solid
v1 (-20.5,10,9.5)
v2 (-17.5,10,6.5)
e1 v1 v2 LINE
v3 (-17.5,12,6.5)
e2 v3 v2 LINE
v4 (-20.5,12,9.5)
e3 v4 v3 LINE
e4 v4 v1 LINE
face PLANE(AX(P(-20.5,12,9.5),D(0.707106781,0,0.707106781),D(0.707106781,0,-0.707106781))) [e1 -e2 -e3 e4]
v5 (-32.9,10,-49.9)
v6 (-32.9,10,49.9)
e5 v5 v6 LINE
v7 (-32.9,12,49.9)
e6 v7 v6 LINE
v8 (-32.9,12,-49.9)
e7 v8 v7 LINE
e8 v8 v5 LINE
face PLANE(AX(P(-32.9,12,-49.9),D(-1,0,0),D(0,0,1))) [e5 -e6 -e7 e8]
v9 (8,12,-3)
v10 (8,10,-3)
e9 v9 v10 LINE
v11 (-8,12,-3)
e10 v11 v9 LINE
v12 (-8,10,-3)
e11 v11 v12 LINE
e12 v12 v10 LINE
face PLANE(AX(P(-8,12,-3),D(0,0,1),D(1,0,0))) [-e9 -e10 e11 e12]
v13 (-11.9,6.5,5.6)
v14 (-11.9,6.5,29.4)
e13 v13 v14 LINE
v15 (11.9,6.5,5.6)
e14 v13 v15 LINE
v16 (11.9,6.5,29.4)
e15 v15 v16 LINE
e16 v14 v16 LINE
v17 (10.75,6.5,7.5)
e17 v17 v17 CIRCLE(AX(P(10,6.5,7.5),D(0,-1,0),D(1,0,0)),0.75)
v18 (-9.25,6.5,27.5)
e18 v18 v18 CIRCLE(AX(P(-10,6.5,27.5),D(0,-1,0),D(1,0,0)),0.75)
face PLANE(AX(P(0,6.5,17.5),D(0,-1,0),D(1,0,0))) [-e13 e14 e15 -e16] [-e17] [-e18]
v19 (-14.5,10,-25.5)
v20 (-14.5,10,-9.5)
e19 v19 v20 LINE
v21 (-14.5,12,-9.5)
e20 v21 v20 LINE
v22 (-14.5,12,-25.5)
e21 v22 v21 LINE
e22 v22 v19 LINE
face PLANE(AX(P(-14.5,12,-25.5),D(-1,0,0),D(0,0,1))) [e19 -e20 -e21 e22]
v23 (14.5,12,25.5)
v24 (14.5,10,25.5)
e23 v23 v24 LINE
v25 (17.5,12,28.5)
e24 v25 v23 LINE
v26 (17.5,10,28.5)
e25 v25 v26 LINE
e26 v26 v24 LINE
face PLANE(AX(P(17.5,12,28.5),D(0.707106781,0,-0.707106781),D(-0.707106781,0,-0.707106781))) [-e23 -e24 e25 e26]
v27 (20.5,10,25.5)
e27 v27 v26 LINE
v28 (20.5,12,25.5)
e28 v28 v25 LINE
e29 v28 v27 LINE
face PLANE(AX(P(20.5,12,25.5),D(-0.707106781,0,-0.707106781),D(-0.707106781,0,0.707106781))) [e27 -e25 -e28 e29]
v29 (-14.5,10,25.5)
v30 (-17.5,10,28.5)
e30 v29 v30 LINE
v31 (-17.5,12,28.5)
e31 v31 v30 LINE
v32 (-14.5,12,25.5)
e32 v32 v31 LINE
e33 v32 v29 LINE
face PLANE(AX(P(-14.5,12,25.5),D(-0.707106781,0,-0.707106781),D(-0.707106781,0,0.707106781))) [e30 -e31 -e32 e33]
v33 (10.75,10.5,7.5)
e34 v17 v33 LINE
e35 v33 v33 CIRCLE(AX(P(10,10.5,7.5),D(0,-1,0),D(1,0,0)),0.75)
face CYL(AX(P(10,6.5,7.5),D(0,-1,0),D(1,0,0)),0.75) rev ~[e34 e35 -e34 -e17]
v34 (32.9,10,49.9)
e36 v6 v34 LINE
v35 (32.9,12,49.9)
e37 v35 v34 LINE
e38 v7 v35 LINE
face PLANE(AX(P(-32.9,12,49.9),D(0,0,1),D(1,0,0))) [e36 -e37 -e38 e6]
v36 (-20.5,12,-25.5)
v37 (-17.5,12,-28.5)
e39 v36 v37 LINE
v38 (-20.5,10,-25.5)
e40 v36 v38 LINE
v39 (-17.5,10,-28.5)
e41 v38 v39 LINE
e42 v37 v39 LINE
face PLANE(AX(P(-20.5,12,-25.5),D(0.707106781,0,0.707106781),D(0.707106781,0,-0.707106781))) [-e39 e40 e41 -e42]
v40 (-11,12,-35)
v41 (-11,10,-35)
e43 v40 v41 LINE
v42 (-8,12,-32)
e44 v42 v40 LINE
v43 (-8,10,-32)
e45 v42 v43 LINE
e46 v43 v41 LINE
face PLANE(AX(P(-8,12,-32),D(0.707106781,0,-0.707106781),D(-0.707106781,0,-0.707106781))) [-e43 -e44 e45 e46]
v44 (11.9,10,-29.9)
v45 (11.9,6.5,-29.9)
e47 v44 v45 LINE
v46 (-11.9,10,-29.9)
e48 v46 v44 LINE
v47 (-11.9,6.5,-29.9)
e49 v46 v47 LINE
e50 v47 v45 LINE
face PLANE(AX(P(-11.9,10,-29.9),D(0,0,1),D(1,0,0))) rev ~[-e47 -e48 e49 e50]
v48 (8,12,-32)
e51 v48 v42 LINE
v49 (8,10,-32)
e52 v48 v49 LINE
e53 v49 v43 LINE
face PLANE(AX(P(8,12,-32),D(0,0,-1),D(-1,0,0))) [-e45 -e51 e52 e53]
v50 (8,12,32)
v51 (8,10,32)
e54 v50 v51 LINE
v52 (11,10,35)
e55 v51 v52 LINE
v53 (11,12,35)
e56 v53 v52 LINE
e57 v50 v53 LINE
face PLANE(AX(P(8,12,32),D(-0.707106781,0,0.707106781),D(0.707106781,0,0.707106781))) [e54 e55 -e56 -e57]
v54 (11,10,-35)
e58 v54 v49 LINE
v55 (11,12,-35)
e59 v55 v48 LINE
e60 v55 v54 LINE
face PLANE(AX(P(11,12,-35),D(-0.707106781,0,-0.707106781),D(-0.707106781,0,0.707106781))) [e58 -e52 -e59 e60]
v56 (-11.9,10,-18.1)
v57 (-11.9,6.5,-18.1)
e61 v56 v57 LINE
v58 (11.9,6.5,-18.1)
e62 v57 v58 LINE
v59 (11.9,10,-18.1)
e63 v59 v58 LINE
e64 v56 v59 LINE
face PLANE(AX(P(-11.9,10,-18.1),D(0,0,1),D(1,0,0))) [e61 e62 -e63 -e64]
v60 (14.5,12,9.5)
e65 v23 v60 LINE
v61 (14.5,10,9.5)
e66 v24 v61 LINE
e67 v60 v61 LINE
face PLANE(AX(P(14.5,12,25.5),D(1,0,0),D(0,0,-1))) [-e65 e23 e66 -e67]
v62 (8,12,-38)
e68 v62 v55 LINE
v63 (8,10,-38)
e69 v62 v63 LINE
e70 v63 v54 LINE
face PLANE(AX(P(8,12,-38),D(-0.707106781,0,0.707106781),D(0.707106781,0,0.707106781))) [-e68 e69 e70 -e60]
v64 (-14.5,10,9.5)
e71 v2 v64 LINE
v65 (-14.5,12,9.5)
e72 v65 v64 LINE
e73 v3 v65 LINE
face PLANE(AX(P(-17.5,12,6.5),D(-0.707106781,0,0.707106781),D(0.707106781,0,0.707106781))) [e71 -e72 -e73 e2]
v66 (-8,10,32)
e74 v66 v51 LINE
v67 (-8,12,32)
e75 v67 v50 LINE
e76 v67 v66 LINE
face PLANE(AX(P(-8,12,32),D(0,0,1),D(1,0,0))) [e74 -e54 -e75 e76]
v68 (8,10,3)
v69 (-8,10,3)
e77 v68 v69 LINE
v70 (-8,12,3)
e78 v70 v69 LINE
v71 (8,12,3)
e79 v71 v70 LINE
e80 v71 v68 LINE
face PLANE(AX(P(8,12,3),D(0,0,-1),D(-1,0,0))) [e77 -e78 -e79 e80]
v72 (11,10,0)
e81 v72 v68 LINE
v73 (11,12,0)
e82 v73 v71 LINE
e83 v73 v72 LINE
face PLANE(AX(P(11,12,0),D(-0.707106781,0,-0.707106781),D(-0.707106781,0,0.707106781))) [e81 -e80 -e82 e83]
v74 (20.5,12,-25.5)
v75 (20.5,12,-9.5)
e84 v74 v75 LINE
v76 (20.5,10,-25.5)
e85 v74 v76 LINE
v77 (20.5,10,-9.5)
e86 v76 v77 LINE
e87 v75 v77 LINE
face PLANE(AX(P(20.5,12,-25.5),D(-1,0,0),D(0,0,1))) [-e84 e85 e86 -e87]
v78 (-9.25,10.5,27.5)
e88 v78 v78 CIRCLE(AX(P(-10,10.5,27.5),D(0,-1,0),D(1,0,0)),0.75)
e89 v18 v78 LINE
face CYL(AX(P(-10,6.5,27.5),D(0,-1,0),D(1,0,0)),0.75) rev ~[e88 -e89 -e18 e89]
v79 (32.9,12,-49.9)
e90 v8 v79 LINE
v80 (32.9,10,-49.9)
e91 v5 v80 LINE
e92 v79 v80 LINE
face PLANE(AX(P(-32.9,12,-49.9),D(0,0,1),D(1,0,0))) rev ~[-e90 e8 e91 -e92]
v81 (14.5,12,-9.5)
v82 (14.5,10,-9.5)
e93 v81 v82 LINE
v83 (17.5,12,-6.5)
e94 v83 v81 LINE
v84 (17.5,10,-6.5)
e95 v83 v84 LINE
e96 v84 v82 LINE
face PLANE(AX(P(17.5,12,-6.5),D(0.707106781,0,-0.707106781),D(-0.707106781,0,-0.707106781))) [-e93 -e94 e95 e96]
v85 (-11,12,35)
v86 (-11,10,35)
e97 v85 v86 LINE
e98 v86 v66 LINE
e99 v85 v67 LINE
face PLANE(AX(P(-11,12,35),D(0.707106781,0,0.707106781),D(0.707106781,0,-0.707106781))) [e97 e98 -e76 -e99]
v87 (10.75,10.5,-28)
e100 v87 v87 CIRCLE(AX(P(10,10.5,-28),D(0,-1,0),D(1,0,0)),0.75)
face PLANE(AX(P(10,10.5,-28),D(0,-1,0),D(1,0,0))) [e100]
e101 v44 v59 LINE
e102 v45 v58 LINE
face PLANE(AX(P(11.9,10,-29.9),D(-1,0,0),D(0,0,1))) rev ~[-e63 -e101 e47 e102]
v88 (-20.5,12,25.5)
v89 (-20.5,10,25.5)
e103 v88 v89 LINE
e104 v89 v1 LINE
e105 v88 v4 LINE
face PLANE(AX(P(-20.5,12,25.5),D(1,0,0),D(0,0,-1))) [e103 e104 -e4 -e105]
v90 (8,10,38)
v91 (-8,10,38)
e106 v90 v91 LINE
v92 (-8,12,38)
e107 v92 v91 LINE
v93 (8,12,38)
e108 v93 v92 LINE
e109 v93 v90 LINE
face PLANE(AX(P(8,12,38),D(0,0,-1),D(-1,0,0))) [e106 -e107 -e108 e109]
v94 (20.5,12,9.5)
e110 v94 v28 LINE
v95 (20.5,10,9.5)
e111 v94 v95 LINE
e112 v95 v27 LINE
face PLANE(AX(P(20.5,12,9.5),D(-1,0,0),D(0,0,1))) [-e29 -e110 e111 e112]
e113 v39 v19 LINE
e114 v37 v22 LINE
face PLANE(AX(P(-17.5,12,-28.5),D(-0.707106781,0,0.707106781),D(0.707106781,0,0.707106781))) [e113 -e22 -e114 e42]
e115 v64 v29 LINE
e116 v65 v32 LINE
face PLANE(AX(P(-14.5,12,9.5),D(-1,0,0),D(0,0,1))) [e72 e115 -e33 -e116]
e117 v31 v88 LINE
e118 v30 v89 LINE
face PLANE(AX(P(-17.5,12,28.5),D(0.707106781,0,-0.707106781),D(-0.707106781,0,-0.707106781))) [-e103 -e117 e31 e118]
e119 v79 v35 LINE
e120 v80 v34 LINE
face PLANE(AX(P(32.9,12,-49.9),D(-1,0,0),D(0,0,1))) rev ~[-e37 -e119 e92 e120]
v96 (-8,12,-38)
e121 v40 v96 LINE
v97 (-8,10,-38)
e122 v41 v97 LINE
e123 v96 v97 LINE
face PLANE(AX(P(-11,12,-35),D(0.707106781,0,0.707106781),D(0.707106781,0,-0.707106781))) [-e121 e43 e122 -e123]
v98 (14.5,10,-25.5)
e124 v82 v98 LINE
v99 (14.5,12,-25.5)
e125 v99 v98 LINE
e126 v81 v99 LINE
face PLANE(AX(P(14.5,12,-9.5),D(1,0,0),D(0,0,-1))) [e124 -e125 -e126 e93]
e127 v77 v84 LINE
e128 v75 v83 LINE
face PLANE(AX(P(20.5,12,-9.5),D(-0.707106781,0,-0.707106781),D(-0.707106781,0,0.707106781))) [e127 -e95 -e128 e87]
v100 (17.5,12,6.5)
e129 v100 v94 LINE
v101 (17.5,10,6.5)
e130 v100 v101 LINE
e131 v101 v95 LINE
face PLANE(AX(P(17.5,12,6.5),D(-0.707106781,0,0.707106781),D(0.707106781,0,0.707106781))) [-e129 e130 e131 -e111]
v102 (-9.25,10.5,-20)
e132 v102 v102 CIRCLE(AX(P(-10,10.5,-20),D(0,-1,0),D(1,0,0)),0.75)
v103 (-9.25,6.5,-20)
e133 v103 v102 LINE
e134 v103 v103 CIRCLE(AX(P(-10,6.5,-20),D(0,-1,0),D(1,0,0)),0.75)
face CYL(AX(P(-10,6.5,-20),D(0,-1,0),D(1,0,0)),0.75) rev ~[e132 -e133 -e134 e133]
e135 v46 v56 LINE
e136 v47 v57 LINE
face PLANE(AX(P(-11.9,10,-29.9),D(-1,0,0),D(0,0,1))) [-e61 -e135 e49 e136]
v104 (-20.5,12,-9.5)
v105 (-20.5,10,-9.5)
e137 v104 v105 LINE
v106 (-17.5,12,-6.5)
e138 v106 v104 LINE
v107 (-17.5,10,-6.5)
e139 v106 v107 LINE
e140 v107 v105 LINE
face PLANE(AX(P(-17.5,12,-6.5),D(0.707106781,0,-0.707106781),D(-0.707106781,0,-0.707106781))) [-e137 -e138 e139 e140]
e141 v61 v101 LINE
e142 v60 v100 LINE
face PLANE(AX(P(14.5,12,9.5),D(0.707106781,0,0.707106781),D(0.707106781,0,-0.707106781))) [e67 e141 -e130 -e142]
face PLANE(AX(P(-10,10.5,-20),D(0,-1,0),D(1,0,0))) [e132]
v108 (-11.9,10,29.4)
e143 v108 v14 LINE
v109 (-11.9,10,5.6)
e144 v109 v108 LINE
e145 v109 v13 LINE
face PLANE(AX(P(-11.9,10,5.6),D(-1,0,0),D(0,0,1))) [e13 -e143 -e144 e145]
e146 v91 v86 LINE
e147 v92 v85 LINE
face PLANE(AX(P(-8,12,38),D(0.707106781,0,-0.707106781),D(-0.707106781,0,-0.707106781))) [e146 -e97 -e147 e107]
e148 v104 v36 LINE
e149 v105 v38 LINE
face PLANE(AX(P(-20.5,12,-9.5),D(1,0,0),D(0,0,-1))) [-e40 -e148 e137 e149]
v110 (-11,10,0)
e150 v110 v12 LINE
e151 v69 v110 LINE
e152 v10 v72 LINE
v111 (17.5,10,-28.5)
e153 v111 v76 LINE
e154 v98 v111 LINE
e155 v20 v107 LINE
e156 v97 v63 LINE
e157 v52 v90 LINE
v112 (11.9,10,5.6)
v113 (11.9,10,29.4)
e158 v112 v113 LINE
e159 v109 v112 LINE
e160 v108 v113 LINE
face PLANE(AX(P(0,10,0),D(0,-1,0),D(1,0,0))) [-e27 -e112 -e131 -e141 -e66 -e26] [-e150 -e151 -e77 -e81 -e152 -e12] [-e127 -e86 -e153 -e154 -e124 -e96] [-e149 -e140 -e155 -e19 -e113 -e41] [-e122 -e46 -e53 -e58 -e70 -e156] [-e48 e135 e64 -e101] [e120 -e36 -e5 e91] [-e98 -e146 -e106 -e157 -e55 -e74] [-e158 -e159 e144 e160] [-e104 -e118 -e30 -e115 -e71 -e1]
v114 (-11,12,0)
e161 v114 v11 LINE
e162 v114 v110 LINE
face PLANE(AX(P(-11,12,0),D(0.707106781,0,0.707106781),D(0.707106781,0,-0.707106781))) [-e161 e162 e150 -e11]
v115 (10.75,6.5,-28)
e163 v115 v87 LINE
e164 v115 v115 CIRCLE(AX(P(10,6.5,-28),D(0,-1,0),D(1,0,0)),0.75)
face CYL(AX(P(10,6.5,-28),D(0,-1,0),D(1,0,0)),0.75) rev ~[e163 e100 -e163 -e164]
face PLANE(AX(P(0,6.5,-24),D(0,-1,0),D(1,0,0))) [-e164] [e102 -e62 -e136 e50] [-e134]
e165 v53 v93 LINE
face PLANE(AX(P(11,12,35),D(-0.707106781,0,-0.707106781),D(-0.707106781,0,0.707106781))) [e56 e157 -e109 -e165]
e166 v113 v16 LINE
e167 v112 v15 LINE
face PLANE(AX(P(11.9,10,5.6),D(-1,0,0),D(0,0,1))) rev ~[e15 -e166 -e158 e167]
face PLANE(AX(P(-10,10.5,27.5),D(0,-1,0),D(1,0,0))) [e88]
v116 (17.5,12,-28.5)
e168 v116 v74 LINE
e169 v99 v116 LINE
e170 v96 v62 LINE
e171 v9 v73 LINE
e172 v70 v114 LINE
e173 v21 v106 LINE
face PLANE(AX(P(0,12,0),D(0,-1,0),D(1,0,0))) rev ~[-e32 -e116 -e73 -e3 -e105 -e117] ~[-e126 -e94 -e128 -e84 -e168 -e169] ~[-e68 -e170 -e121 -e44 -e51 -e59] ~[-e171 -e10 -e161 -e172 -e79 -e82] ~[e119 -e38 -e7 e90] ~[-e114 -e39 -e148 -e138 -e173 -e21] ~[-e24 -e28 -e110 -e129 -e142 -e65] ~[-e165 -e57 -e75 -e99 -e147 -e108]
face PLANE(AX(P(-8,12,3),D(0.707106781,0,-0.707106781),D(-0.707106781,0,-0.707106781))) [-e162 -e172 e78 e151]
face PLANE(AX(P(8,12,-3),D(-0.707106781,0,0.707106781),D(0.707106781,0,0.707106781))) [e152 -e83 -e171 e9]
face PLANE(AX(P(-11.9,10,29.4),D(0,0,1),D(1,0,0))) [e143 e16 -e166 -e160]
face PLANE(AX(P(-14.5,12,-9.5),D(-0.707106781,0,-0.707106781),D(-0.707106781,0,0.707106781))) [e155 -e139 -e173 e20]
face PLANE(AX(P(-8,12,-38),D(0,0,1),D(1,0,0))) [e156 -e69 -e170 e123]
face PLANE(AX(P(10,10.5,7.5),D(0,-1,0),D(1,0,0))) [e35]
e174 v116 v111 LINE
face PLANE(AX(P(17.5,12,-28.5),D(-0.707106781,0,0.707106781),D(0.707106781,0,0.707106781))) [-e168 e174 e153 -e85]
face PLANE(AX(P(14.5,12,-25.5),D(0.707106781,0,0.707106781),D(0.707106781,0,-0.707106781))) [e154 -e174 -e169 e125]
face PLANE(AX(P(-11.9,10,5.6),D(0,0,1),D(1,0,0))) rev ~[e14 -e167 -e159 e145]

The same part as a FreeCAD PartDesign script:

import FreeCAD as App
import Part
import Sketcher

V = App.Vector


def add_polygon(sketch, points):
    """Adds a closed chain of lines whose ends are joined by coincident constraints."""
    first, n = sketch.GeometryCount, len(points)
    for a, b in zip(points, points[1:] + points[:1]):
        sketch.addGeometry(Part.LineSegment(App.Vector(*a, 0), App.Vector(*b, 0)), False)
    for i in range(n):
        sketch.addConstraint(Sketcher.Constraint("Coincident", first + i, 2, first + (i + 1) % n, 1))

doc = App.newDocument("Part")
body = doc.addObject("PartDesign::Body", "Body")

sketch1 = body.newObject("Sketcher::SketchObject", "Sketch")
sketch1.AttachmentSupport = (doc.getObject("XZ_Plane"), [""])
sketch1.MapMode = "FlatFace"
add_polygon(sketch1, [(-32.9, 49.9), (-32.9, -49.9), (32.9, -49.9), (32.9, 49.9)])
add_polygon(sketch1, [(-17.5, -6.5), (-14.5, -9.5), (-14.5, -25.5), (-17.5, -28.5), (-20.5, -25.5), (-20.5, -9.5)])
add_polygon(sketch1, [(-8, -32), (8, -32), (11, -35), (8, -38), (-8, -38), (-11, -35)])
add_polygon(sketch1, [(17.5, -6.5), (20.5, -9.5), (20.5, -25.5), (17.5, -28.5), (14.5, -25.5), (14.5, -9.5)])
add_polygon(sketch1, [(-17.5, 28.5), (-14.5, 25.5), (-14.5, 9.5), (-17.5, 6.5), (-20.5, 9.5), (-20.5, 25.5)])
add_polygon(sketch1, [(-8, 3), (8, 3), (11, 0), (8, -3), (-8, -3), (-11, 0)])
add_polygon(sketch1, [(17.5, 28.5), (20.5, 25.5), (20.5, 9.5), (17.5, 6.5), (14.5, 9.5), (14.5, 25.5)])
add_polygon(sketch1, [(-8, 38), (8, 38), (11, 35), (8, 32), (-8, 32), (-11, 35)])
sketch1.addConstraint([
    Sketcher.Constraint("Vertical", 0),
    Sketcher.Constraint("Horizontal", 1),
    Sketcher.Constraint("Vertical", 2),
    Sketcher.Constraint("Horizontal", 3),
    Sketcher.Constraint("Vertical", 5),
    Sketcher.Constraint("Vertical", 8),
    Sketcher.Constraint("Horizontal", 10),
    Sketcher.Constraint("Horizontal", 13),
    Sketcher.Constraint("Vertical", 17),
    Sketcher.Constraint("Vertical", 20),
    Sketcher.Constraint("Vertical", 23),
    Sketcher.Constraint("Vertical", 26),
    Sketcher.Constraint("Horizontal", 28),
    Sketcher.Constraint("Horizontal", 31),
    Sketcher.Constraint("Vertical", 35),
    Sketcher.Constraint("Vertical", 38),
    Sketcher.Constraint("Horizontal", 40),
    Sketcher.Constraint("Horizontal", 43),
    Sketcher.Constraint("Symmetric", 0, 2, 2, 2, -1, 1),
    Sketcher.Constraint("Symmetric", 19, 2, 22, 2, -1, 1),
    Sketcher.Constraint("Symmetric", 21, 2, 24, 2, -1, 1),
    Sketcher.Constraint("Symmetric", 16, 2, 25, 2, -1, 1),
    Sketcher.Constraint("Symmetric", 18, 2, 27, 2, -1, 1),
    Sketcher.Constraint("Symmetric", 28, 2, 31, 2, -1, 1),
    Sketcher.Constraint("Symmetric", 29, 2, 32, 2, -1, 1),
    Sketcher.Constraint("Symmetric", 7, 2, 34, 2, -1, 1),
    Sketcher.Constraint("Symmetric", 9, 2, 36, 2, -1, 1),
    Sketcher.Constraint("Symmetric", 4, 2, 37, 2, -1, 1),
    Sketcher.Constraint("Symmetric", 6, 2, 39, 2, -1, 1),
    Sketcher.Constraint("Symmetric", 13, 2, 40, 2, -1, 1),
    Sketcher.Constraint("Symmetric", 14, 2, 41, 2, -1, 1),
    Sketcher.Constraint("Symmetric", 15, 2, 42, 2, -1, 1),
    Sketcher.Constraint("Symmetric", 11, 2, 44, 2, -1, 1),
    Sketcher.Constraint("Symmetric", 11, 2, 14, 2, -2),
    Sketcher.Constraint("Symmetric", 8, 2, 16, 2, -2),
    Sketcher.Constraint("Symmetric", 6, 2, 18, 2, -2),
    Sketcher.Constraint("Symmetric", 5, 2, 19, 2, -2),
    Sketcher.Constraint("Symmetric", 9, 2, 21, 2, -2),
    Sketcher.Constraint("PointOnObject", 29, 2, -1),
    Sketcher.Constraint("Perpendicular", 4, 6),
    Sketcher.Constraint("Perpendicular", 6, 7),
    Sketcher.Constraint("Perpendicular", 7, 9),
    Sketcher.Constraint("Perpendicular", 9, 11),
    Sketcher.Constraint("Perpendicular", 11, 12),
    Sketcher.Constraint("Perpendicular", 12, 14),
    Sketcher.Constraint("Perpendicular", 14, 15),
    Sketcher.Constraint("Perpendicular", 15, 16),
    Sketcher.Constraint("Perpendicular", 16, 18),
    Sketcher.Constraint("Perpendicular", 19, 21),
    Sketcher.Constraint("Perpendicular", 22, 24),
    Sketcher.Constraint("Perpendicular", 25, 27),
    Sketcher.Constraint("Perpendicular", 27, 29),
    Sketcher.Constraint("Perpendicular", 29, 30),
    Sketcher.Constraint("Perpendicular", 32, 33),
    Sketcher.Constraint("Perpendicular", 34, 36),
    Sketcher.Constraint("Perpendicular", 37, 39),
    Sketcher.Constraint("Perpendicular", 42, 44),
    Sketcher.Constraint("Perpendicular", 44, 45),
    Sketcher.Constraint("Horizontal", 5, 2, 7, 2),
    Sketcher.Constraint("Horizontal", 4, 2, 8, 2),
    Sketcher.Constraint("Vertical", 10, 2, 12, 2),
    Sketcher.Constraint("Vertical", 12, 2, 28, 2),
    Sketcher.Constraint("Vertical", 11, 2, 29, 2),
    Sketcher.Constraint("Equal", 43, 5),
    Sketcher.Constraint("Equal", 9, 11),
    Sketcher.Constraint("DistanceX", 10, 1, 10, 2, 16.0),
    Sketcher.Constraint("DistanceX", 1, 1, 1, 2, 65.8),
    Sketcher.Constraint("DistanceY", 0, 2, 0, 1, 99.8),
    Sketcher.Constraint("DistanceY", 10, 2, -1, 1, 32.0),
    Sketcher.Constraint("DistanceX", -1, 1, 11, 2, 11.0),
    Sketcher.Constraint("DistanceX", 4, 2, 16, 2, 35.0),
    Sketcher.Constraint("DistanceY", 9, 2, 22, 2, 32.0),
])
pad1 = body.newObject("PartDesign::Pad", "Pad")
pad1.Profile = sketch1
pad1.Length = 2

sketch2 = body.newObject("Sketcher::SketchObject", "Sketch001")
sketch2.AttachmentSupport = (doc.getObject("XZ_Plane"), [""])
sketch2.MapMode = "FlatFace"
sketch2.AttachmentOffset = App.Placement(V(0, 0, 2), App.Rotation())
add_polygon(sketch2, [(-12, 29), (-12, 6), (12, 6), (12, 29)])
add_polygon(sketch2, [(-12, -18), (-12, -30), (12, -30), (12, -18)])
sketch2.addConstraint([
    Sketcher.Constraint("Vertical", 0),
    Sketcher.Constraint("Horizontal", 1),
    Sketcher.Constraint("Vertical", 2),
    Sketcher.Constraint("Horizontal", 3),
    Sketcher.Constraint("Vertical", 4),
    Sketcher.Constraint("Horizontal", 5),
    Sketcher.Constraint("Vertical", 6),
    Sketcher.Constraint("Horizontal", 7),
    Sketcher.Constraint("Vertical", 3, 2, 4, 2),
    Sketcher.Constraint("Vertical", 2, 2, 5, 2),
    Sketcher.Constraint("Equal", 7, 0),
    Sketcher.Constraint("DistanceX", 1, 1, 1, 2, 23.8),
    Sketcher.Constraint("DistanceY", 4, 2, 4, 1, 11.8),
    Sketcher.Constraint("DistanceX", 0, 2, -1, 1, 11.9),
    Sketcher.Constraint("DistanceY", -1, 1, 0, 2, 5.6),
    Sketcher.Constraint("DistanceY", 4, 2, -1, 1, 29.9),
])
pad2 = body.newObject("PartDesign::Pad", "Pad001")
pad2.Profile = sketch2
pad2.Length = 3.5

sketch3 = body.newObject("Sketcher::SketchObject", "Sketch002")
sketch3.AttachmentSupport = (doc.getObject("XZ_Plane"), [""])
sketch3.MapMode = "FlatFace"
sketch3.AttachmentOffset = App.Placement(V(0, 0, 5.5), App.Rotation())
sketch3.addGeometry([
    Part.Circle(V(-10, 27.5, 0), V(0, 0, 1), 0.8),
    Part.Circle(V(10, 7.5, 0), V(0, 0, 1), 0.8),
    Part.Circle(V(-10, -20, 0), V(0, 0, 1), 0.8),
    Part.Circle(V(10, -28, 0), V(0, 0, 1), 0.8),
], False)
sketch3.addConstraint([
    Sketcher.Constraint("Equal", 0, 1),
    Sketcher.Constraint("Equal", 1, 2),
    Sketcher.Constraint("Equal", 2, 3),
    Sketcher.Constraint("Vertical", 0, 3, 2, 3),
    Sketcher.Constraint("Vertical", 1, 3, 3, 3),
    Sketcher.Constraint("Diameter", 0, 1.5),
    Sketcher.Constraint("DistanceX", 0, 3, -1, 1, 10.0),
    Sketcher.Constraint("DistanceX", -1, 1, 1, 3, 10.0),
    Sketcher.Constraint("DistanceY", 2, 3, -1, 1, 20.0),
    Sketcher.Constraint("DistanceY", 3, 3, -1, 1, 28.0),
    Sketcher.Constraint("DistanceY", 1, 3, 0, 3, 20.0),
    Sketcher.Constraint("DistanceY", -1, 1, 0, 3, 27.5),
])
pocket1 = body.newObject("PartDesign::Pocket", "Pocket")
pocket1.Profile = sketch3
pocket1.Length = 4
body2 = doc.addObject("PartDesign::Body", "Body001")
doc.recompute()

body.Placement = App.Placement(V(0, 12, 0), App.Rotation(V(0, 0, 1), 0))
boolean = body2.newObject("PartDesign::Boolean", "Boolean")
boolean.Type = "Fuse"
boolean.addObjects([body])

doc.recompute()
